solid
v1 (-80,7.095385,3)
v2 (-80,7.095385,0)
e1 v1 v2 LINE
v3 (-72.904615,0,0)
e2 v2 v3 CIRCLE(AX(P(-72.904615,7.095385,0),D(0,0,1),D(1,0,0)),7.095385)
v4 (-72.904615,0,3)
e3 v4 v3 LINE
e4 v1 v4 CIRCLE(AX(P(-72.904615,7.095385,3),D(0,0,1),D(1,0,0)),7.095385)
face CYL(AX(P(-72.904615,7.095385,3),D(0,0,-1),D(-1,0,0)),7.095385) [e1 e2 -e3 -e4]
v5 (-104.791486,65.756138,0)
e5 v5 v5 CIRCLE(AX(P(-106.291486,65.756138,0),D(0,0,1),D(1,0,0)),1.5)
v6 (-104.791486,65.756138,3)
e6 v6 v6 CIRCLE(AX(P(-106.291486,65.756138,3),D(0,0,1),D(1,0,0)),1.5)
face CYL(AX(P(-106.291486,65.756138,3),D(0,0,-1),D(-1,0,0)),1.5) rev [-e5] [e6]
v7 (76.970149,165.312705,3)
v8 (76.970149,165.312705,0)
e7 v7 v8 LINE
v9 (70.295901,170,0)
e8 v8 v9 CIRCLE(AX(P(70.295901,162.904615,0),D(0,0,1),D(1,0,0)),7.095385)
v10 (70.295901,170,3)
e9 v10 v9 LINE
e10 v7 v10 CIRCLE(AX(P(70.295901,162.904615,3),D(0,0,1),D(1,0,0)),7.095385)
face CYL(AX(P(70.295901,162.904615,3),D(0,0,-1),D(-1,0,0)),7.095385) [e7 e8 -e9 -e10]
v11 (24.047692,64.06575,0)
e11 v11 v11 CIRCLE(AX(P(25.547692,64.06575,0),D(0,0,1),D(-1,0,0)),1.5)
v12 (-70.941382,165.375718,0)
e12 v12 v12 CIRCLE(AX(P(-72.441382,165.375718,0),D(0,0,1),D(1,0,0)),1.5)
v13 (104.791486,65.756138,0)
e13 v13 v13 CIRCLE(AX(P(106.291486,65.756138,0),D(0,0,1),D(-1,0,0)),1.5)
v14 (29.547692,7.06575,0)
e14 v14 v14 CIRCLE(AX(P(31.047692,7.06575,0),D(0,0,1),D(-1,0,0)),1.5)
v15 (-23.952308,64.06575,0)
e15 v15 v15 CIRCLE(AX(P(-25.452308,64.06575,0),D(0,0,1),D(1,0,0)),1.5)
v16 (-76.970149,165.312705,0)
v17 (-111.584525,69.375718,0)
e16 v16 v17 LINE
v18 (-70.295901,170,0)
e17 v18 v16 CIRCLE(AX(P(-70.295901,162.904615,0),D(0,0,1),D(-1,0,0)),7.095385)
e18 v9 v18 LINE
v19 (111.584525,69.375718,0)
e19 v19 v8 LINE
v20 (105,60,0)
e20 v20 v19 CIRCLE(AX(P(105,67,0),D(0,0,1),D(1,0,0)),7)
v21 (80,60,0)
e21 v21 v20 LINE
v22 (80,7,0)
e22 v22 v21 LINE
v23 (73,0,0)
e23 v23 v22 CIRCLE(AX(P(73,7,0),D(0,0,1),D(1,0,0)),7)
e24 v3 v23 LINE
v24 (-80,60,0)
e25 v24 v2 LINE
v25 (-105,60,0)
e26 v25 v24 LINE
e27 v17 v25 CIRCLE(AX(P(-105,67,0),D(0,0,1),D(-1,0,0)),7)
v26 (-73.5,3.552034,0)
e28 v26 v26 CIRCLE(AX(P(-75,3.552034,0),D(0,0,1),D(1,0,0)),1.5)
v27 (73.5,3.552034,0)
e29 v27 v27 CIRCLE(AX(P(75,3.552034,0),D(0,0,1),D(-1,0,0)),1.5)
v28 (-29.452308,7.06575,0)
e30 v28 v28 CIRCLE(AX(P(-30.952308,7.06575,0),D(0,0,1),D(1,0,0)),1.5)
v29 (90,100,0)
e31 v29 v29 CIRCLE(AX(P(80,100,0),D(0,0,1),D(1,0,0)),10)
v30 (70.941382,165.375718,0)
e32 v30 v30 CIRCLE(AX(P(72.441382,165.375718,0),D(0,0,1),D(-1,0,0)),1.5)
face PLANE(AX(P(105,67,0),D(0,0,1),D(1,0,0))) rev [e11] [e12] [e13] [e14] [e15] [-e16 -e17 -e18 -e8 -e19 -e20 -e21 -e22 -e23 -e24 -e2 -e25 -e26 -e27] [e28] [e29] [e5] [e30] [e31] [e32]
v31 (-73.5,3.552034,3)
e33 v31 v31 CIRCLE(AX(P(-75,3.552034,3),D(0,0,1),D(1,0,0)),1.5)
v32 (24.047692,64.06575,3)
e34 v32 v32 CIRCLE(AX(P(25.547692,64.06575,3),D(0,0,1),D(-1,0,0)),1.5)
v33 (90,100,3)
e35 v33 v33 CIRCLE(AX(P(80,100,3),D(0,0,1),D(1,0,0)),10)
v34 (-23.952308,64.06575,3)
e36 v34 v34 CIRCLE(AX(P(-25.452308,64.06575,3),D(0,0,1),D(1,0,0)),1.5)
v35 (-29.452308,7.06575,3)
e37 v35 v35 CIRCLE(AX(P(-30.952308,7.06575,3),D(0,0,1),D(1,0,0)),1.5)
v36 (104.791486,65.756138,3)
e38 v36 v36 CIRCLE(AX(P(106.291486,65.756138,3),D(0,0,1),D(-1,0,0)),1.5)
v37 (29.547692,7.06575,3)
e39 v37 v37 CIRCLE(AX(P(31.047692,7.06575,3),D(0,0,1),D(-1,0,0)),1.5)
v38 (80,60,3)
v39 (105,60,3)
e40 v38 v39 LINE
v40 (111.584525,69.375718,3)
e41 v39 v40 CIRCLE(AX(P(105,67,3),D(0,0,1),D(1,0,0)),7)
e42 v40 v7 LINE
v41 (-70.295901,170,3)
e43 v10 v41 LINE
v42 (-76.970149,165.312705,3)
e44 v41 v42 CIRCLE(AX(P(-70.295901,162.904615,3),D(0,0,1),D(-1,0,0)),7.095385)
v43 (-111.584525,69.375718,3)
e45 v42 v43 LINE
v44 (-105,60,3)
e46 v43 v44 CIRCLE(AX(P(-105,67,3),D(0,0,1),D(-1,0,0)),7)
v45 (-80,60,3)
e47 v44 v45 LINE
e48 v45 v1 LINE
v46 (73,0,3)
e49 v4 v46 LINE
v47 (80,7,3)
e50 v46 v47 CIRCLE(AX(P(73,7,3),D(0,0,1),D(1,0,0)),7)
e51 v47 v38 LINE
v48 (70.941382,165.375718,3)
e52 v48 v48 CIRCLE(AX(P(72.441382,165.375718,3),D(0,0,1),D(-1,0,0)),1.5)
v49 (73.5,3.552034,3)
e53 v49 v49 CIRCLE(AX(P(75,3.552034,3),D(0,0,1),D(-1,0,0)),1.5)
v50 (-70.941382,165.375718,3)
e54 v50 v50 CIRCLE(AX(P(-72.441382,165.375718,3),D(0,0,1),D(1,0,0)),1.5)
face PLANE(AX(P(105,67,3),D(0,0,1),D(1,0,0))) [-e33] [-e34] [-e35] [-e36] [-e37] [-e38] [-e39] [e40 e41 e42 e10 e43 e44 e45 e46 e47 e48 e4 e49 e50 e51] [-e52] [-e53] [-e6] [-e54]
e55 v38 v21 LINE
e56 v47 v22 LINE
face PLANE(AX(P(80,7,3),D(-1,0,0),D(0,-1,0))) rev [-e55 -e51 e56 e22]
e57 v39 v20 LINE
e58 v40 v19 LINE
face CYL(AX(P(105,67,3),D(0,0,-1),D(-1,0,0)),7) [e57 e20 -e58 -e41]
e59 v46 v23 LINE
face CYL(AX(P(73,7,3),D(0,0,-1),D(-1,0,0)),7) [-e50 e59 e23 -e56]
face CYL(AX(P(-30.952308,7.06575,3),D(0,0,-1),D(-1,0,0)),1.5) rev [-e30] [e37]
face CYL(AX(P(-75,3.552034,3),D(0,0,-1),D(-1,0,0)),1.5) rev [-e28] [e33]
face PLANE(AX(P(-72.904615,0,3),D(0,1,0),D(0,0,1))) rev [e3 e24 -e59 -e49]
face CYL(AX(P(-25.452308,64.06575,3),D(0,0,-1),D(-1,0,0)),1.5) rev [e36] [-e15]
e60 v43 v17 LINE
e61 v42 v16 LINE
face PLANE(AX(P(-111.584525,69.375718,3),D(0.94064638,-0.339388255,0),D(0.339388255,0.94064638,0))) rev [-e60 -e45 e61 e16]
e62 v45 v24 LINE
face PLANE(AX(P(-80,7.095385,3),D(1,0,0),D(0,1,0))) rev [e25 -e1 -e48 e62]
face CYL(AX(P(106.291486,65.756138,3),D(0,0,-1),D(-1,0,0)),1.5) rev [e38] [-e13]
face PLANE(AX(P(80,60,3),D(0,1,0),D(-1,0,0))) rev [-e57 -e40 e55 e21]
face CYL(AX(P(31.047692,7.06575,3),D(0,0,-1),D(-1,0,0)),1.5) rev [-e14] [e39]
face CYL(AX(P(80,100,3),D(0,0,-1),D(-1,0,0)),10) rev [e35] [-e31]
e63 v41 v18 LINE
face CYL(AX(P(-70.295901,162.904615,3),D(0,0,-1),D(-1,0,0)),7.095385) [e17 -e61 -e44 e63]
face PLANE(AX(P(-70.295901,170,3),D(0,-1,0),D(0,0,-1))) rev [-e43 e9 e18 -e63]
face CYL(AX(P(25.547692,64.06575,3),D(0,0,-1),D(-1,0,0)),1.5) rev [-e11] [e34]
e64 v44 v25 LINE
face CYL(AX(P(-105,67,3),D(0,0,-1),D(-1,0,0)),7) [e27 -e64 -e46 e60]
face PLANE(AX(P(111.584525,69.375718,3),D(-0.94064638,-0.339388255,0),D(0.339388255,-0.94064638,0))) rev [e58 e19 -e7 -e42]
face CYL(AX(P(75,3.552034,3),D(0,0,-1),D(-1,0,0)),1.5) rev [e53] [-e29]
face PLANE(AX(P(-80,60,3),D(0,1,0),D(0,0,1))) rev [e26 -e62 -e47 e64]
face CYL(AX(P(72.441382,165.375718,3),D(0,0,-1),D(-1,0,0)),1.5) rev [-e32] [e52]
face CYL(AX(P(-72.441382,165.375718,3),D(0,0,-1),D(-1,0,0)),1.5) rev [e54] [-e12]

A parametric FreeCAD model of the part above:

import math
import FreeCAD as App
import Part
import Sketcher

V = App.Vector

doc = App.newDocument("Part")
body = doc.addObject("PartDesign::Body", "Body")

# Sketch on XY plane
sketch1 = body.newObject("Sketcher::SketchObject", "Sketch")
sketch1.AttachmentSupport = (doc.getObject("XY_Plane"), [""])
sketch1.MapMode = "FlatFace"
sketch1.addGeometry(Part.LineSegment(V(-72.904615, 0, 0), V(73, 0, 0)), False)
sketch1.addGeometry(Part.ArcOfCircle(Part.Circle(V(73, 7, 0), V(0, 0, 1), 7), math.radians(-90), math.radians(0)), False)
sketch1.addGeometry(Part.LineSegment(V(80, 7, 0), V(80, 60, 0)), False)
sketch1.addGeometry(Part.LineSegment(V(80, 60, 0), V(105, 60, 0)), False)
sketch1.addGeometry(Part.ArcOfCircle(Part.Circle(V(105, 67, 0), V(0, 0, 1), 7), math.radians(-90), math.radians(19.839608)), False)
sketch1.addGeometry(Part.LineSegment(V(111.584525, 69.375718, 0), V(76.970149, 165.312705, 0)), False)
sketch1.addGeometry(Part.ArcOfCircle(Part.Circle(V(70.295901, 162.904615, 0), V(0, 0, 1), 7.095385), math.radians(19.839608), math.radians(90)), False)
sketch1.addGeometry(Part.LineSegment(V(70.295901, 170, 0), V(-70.295901, 170, 0)), False)
sketch1.addGeometry(Part.ArcOfCircle(Part.Circle(V(-70.295901, 162.904615, 0), V(0, 0, 1), 7.095385), math.radians(90), math.radians(160.160392)), False)
sketch1.addGeometry(Part.LineSegment(V(-76.970149, 165.312705, 0), V(-111.584525, 69.375718, 0)), False)
sketch1.addGeometry(Part.ArcOfCircle(Part.Circle(V(-105, 67, 0), V(0, 0, 1), 7), math.radians(160.160392), math.radians(270)), False)
sketch1.addGeometry(Part.LineSegment(V(-105, 60, 0), V(-80, 60, 0)), False)
sketch1.addGeometry(Part.LineSegment(V(-80, 60, 0), V(-80, 7.095385, 0)), False)
sketch1.addGeometry(Part.ArcOfCircle(Part.Circle(V(-72.904615, 7.095385, 0), V(0, 0, 1), 7.095385), math.radians(-180), math.radians(-90)), False)
sketch1.addGeometry(Part.Circle(V(-75, 3.552034, 0), V(0, 0, 1), 1.5), False)
sketch1.addGeometry(Part.Circle(V(-30.952308, 7.06575, 0), V(0, 0, 1), 1.5), False)
sketch1.addGeometry(Part.Circle(V(-106.291486, 65.756138, 0), V(0, 0, 1), 1.5), False)
sketch1.addGeometry(Part.Circle(V(-25.452308, 64.06575, 0), V(0, 0, 1), 1.5), False)
sketch1.addGeometry(Part.Circle(V(31.047692, 7.06575, 0), V(0, 0, 1), 1.5), False)
sketch1.addGeometry(Part.Circle(V(75, 3.552034, 0), V(0, 0, 1), 1.5), False)
sketch1.addGeometry(Part.Circle(V(25.547692, 64.06575, 0), V(0, 0, 1), 1.5), False)
sketch1.addGeometry(Part.Circle(V(106.291486, 65.756138, 0), V(0, 0, 1), 1.5), False)
sketch1.addGeometry(Part.Circle(V(-72.441382, 165.375718, 0), V(0, 0, 1), 1.5), False)
sketch1.addGeometry(Part.Circle(V(80, 100, 0), V(0, 0, 1), 10), False)
sketch1.addGeometry(Part.Circle(V(72.441382, 165.375718, 0), V(0, 0, 1), 1.5), False)
sketch1.addConstraint(Sketcher.Constraint("Tangent", 0, 2, 1, 1))
sketch1.addConstraint(Sketcher.Constraint("Tangent", 1, 2, 2, 1))
sketch1.addConstraint(Sketcher.Constraint("Coincident", 2, 2, 3, 1))
sketch1.addConstraint(Sketcher.Constraint("Tangent", 3, 2, 4, 1))
sketch1.addConstraint(Sketcher.Constraint("Tangent", 4, 2, 5, 1))
sketch1.addConstraint(Sketcher.Constraint("Tangent", 5, 2, 6, 1))
sketch1.addConstraint(Sketcher.Constraint("Tangent", 6, 2, 7, 1))
sketch1.addConstraint(Sketcher.Constraint("Tangent", 7, 2, 8, 1))
sketch1.addConstraint(Sketcher.Constraint("Tangent", 8, 2, 9, 1))
sketch1.addConstraint(Sketcher.Constraint("Tangent", 9, 2, 10, 1))
sketch1.addConstraint(Sketcher.Constraint("Tangent", 10, 2, 11, 1))
sketch1.addConstraint(Sketcher.Constraint("Coincident", 11, 2, 12, 1))
sketch1.addConstraint(Sketcher.Constraint("Tangent", 12, 2, 13, 1))
sketch1.addConstraint(Sketcher.Constraint("Tangent", 13, 2, 0, 1))
sketch1.addConstraint(Sketcher.Constraint("Horizontal", 0))
sketch1.addConstraint(Sketcher.Constraint("Vertical", 2))
sketch1.addConstraint(Sketcher.Constraint("Horizontal", 3))
sketch1.addConstraint(Sketcher.Constraint("Horizontal", 7))
sketch1.addConstraint(Sketcher.Constraint("Horizontal", 11))
sketch1.addConstraint(Sketcher.Constraint("Vertical", 12))
sketch1.addConstraint(Sketcher.Constraint("Equal", 1, 4))
sketch1.addConstraint(Sketcher.Constraint("Equal", 6, 8))
sketch1.addConstraint(Sketcher.Constraint("Equal", 4, 10))
sketch1.addConstraint(Sketcher.Constraint("Equal", 8, 13))
sketch1.addConstraint(Sketcher.Constraint("Equal", 14, 15))
sketch1.addConstraint(Sketcher.Constraint("Equal", 15, 16))
sketch1.addConstraint(Sketcher.Constraint("Equal", 16, 17))
sketch1.addConstraint(Sketcher.Constraint("Equal", 17, 18))
sketch1.addConstraint(Sketcher.Constraint("Equal", 18, 19))
sketch1.addConstraint(Sketcher.Constraint("Equal", 19, 20))
sketch1.addConstraint(Sketcher.Constraint("Equal", 20, 21))
sketch1.addConstraint(Sketcher.Constraint("Equal", 21, 22))
sketch1.addConstraint(Sketcher.Constraint("Equal", 22, 24))
sketch1.addConstraint(Sketcher.Constraint("Symmetric", 4, 3, 10, 3, -2))
sketch1.addConstraint(Sketcher.Constraint("Symmetric", 14, 3, 19, 3, -2))
sketch1.addConstraint(Sketcher.Constraint("Symmetric", 16, 3, 21, 3, -2))
sketch1.addConstraint(Sketcher.Constraint("Symmetric", 22, 3, 24, 3, -2))
sketch1.addConstraint(Sketcher.Constraint("PointOnObject", 0, 2, -1))
sketch1.addConstraint(Sketcher.Constraint("Horizontal", 15, 3, 18, 3))
sketch1.addConstraint(Sketcher.Constraint("Horizontal", 17, 3, 20, 3))
sketch1.addConstraint(Sketcher.Constraint("Horizontal", 5, 2, 8, 2))
sketch1.addConstraint(Sketcher.Constraint("Vertical", 23, 3, 1, 2))
sketch1.addConstraint(Sketcher.Constraint("Equal", 3, 11))
sketch1.addConstraint(Sketcher.Constraint("Diameter", 14, 3.0))
sketch1.addConstraint(Sketcher.Constraint("Diameter", 23, 20.0))
sketch1.addConstraint(Sketcher.Constraint("Radius", 1, 7.0))
sketch1.addConstraint(Sketcher.Constraint("DistanceX", 3, 1, 3, 2, 25.0))
sketch1.addConstraint(Sketcher.Constraint("DistanceY", 2, 1, 2, 2, 53.0))
sketch1.addConstraint(Sketcher.Constraint("DistanceX", -1, 1, 1, 3, 73.0))
sketch1.addConstraint(Sketcher.Constraint("DistanceX", 14, 3, -1, 1, 75.0))
sketch1.addConstraint(Sketcher.Constraint("DistanceY", -1, 1, 23, 3, 100.0))
sketch1.addConstraint(Sketcher.Constraint("DistanceY", -1, 1, 6, 2, 170.0))
sketch1.addConstraint(Sketcher.Constraint("DistanceY", 15, 3, 17, 3, 57.0))
sketch1.addConstraint(Sketcher.Constraint("DistanceX", 15, 3, 18, 3, 62.0))
sketch1.addConstraint(Sketcher.Constraint("DistanceX", 17, 3, 20, 3, 51.0))
sketch1.addConstraint(Sketcher.Constraint("DistanceX", 15, 3, 17, 3, 5.5))
sketch1.addConstraint(Sketcher.Constraint("Radius", 6, 7.095385))
sketch1.addConstraint(Sketcher.Constraint("DistanceX", -1, 1, 6, 3, 70.295901))
sketch1.addConstraint(Sketcher.Constraint("DistanceY", -1, 1, 15, 3, 7.06575))
sketch1.addConstraint(Sketcher.Constraint("DistanceY", 14, 3, 13, 3, 3.543351))
sketch1.addConstraint(Sketcher.Constraint("DistanceX", 16, 3, 13, 3, 33.38687))
sketch1.addConstraint(Sketcher.Constraint("DistanceX", 16, 3, 15, 3, 75.339178))
sketch1.addConstraint(Sketcher.Constraint("DistanceX", 22, 3, 8, 3, 2.145481))
sketch1.addConstraint(Sketcher.Constraint("DistanceY", 16, 3, 22, 3, 99.61958))
sketch1.addConstraint(Sketcher.Constraint("DistanceY", 21, 3, 4, 2, 3.61958))
pad1 = body.newObject("PartDesign::Pad", "Pad")
pad1.Profile = sketch1
pad1.Length = 3

doc.recompute()
